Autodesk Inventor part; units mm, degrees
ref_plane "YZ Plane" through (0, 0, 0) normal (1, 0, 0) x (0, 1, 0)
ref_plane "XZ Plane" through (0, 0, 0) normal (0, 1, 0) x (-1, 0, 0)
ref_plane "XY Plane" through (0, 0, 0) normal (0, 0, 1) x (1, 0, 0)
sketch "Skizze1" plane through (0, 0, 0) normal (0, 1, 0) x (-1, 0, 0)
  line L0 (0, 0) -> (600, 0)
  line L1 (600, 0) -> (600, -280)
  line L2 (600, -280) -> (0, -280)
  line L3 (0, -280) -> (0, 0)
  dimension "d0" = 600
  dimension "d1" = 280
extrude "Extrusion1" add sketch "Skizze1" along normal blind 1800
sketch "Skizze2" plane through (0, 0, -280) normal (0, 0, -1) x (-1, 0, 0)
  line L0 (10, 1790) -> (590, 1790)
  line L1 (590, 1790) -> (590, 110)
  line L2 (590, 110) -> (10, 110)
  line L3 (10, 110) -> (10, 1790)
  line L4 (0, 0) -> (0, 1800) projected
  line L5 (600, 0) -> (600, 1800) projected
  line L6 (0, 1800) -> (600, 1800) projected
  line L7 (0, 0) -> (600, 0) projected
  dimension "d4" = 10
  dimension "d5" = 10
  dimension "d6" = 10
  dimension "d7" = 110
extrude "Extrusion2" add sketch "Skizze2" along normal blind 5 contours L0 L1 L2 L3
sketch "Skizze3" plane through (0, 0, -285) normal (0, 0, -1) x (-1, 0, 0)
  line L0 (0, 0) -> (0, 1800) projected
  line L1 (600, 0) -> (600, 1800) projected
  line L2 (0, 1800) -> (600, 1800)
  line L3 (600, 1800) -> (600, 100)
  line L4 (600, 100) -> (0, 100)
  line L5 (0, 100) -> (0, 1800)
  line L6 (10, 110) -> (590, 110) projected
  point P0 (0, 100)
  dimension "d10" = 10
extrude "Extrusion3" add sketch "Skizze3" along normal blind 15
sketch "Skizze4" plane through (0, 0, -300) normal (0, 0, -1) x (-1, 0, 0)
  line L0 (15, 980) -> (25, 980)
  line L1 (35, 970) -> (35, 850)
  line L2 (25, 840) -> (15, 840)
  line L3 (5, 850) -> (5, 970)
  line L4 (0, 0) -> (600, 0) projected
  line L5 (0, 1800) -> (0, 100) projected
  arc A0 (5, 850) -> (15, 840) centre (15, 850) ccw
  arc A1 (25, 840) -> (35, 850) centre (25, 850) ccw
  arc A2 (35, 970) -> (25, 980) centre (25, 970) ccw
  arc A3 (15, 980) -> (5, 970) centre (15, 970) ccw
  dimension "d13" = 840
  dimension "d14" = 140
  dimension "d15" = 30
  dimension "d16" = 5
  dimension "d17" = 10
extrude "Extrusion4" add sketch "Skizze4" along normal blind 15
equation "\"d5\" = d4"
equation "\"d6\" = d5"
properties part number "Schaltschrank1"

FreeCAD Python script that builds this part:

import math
import FreeCAD as App
import Part
import Sketcher
Q = App.Units.Quantity


def add_polygon(sketch, points):
    """Adds a closed chain of lines whose ends are joined by coincident constraints."""
    first, n = sketch.GeometryCount, len(points)
    for a, b in zip(points, points[1:] + points[:1]):
        sketch.addGeometry(Part.LineSegment(App.Vector(*a, 0), App.Vector(*b, 0)), False)
    for i in range(n):
        sketch.addConstraint(Sketcher.Constraint("Coincident", first + i, 2, first + (i + 1) % n, 1))

doc = App.newDocument("Part")
body = doc.addObject("PartDesign::Body", "Body")

# Sketch on XZ plane
sketch1 = body.newObject("Sketcher::SketchObject", "Sketch")
sketch1.AttachmentSupport = (doc.getObject("XZ_Plane"), [""])
sketch1.MapMode = "FlatFace"
add_polygon(sketch1, [(-600, 0), (0, 0), (0, -280), (-600, -280)])  # lines 0-3
sketch1.addConstraint([
    Sketcher.Constraint("Horizontal", 0),
    Sketcher.Constraint("Vertical", 1),
    Sketcher.Constraint("Horizontal", 2),
    Sketcher.Constraint("Vertical", 3),
    Sketcher.Constraint("Coincident", 0, 2, -1, 1),
    Sketcher.Constraint("DistanceX", 0, 1, 0, 2, Q("600 mm")),
    Sketcher.Constraint("DistanceY", 1, 2, 1, 1, Q("280 mm")),
])
pad1 = body.newObject("PartDesign::Pad", "Pad")
pad1.Profile = sketch1
pad1.Length = 1800
pad1.Reversed = True

# Sketch on XY plane
sketch2 = body.newObject("Sketcher::SketchObject", "Sketch001")
sketch2.AttachmentSupport = (doc.getObject("XY_Plane"), [""])
sketch2.MapMode = "FlatFace"
sketch2.AttachmentOffset = App.Placement(App.Vector(0, 0, -280), App.Rotation())
add_polygon(sketch2, [(-590, 1790), (-10, 1790), (-10, 110), (-590, 110)])  # lines 0-3
sketch2.addConstraint([
    Sketcher.Constraint("Horizontal", 0),
    Sketcher.Constraint("Vertical", 1),
    Sketcher.Constraint("Horizontal", 2),
    Sketcher.Constraint("Vertical", 3),
    Sketcher.Constraint("DistanceX", 0, 2, -1, 1, Q("10 mm")),
    Sketcher.Constraint("DistanceY", -1, 1, 1, 2, Q("110 mm")),
    Sketcher.Constraint("DistanceX", 0, 1, 0, 2, Q("580 mm")),
    Sketcher.Constraint("DistanceY", 1, 2, 1, 1, Q("1680 mm")),
])
pad2 = body.newObject("PartDesign::Pad", "Pad001")
pad2.Profile = sketch2
pad2.Length = 5
pad2.Reversed = True

# Sketch on XY plane
sketch3 = body.newObject("Sketcher::SketchObject", "Sketch002")
sketch3.AttachmentSupport = (doc.getObject("XY_Plane"), [""])
sketch3.MapMode = "FlatFace"
sketch3.AttachmentOffset = App.Placement(App.Vector(0, 0, -285), App.Rotation())
add_polygon(sketch3, [(0, 1800), (0, 100), (-600, 100), (-600, 1800)])  # lines 0-3
sketch3.addConstraint([
    Sketcher.Constraint("Vertical", 0),
    Sketcher.Constraint("Horizontal", 1),
    Sketcher.Constraint("Vertical", 2),
    Sketcher.Constraint("Horizontal", 3),
    Sketcher.Constraint("PointOnObject", 0, 2, -2),
    Sketcher.Constraint("DistanceX", 1, 2, 1, 1, Q("600 mm")),
    Sketcher.Constraint("DistanceY", 0, 2, 0, 1, Q("1700 mm")),
    Sketcher.Constraint("DistanceY", -1, 1, 0, 2, Q("100 mm")),
])
pad3 = body.newObject("PartDesign::Pad", "Pad002")
pad3.Profile = sketch3
pad3.Length = 15
pad3.Reversed = True

# Sketch on XY plane
sketch4 = body.newObject("Sketcher::SketchObject", "Sketch003")
sketch4.AttachmentSupport = (doc.getObject("XY_Plane"), [""])
sketch4.MapMode = "FlatFace"
sketch4.AttachmentOffset = App.Placement(App.Vector(0, 0, -300), App.Rotation())
sketch4.addGeometry([
    Part.LineSegment(App.Vector(-25, 980, 0), App.Vector(-15, 980, 0)),  # 0
    Part.ArcOfCircle(Part.Circle(App.Vector(-15, 970, 0), App.Vector(0, 0, 1), 10), math.radians(0), math.radians(90)),  # 1
    Part.LineSegment(App.Vector(-5, 970, 0), App.Vector(-5, 850, 0)),  # 2
    Part.ArcOfCircle(Part.Circle(App.Vector(-15, 850, 0), App.Vector(0, 0, 1), 10), math.radians(-90), math.radians(0)),  # 3
    Part.LineSegment(App.Vector(-15, 840, 0), App.Vector(-25, 840, 0)),  # 4
    Part.ArcOfCircle(Part.Circle(App.Vector(-25, 850, 0), App.Vector(0, 0, 1), 10), math.radians(180), math.radians(270)),  # 5
    Part.LineSegment(App.Vector(-35, 850, 0), App.Vector(-35, 970, 0)),  # 6
    Part.ArcOfCircle(Part.Circle(App.Vector(-25, 970, 0), App.Vector(0, 0, 1), 10), math.radians(90), math.radians(180)),  # 7
], False)
sketch4.addConstraint([
    Sketcher.Constraint("Tangent", 0, 2, 1, 2),
    Sketcher.Constraint("Tangent", 1, 1, 2, 1),
    Sketcher.Constraint("Tangent", 2, 2, 3, 2),
    Sketcher.Constraint("Tangent", 3, 1, 4, 1),
    Sketcher.Constraint("Tangent", 4, 2, 5, 2),
    Sketcher.Constraint("Tangent", 5, 1, 6, 1),
    Sketcher.Constraint("Tangent", 6, 2, 7, 2),
    Sketcher.Constraint("Tangent", 7, 1, 0, 1),
    Sketcher.Constraint("Horizontal", 0),
    Sketcher.Constraint("Vertical", 2),
    Sketcher.Constraint("Horizontal", 4),
    Sketcher.Constraint("Vertical", 6),
    Sketcher.Constraint("Equal", 1, 3),
    Sketcher.Constraint("Equal", 3, 5),
    Sketcher.Constraint("Equal", 5, 7),
    Sketcher.Constraint("Radius", 1, Q("10 mm")),
    Sketcher.Constraint("DistanceX", 0, 1, 0, 2, Q("10 mm")),
    Sketcher.Constraint("DistanceX", 1, 1, -1, 1, Q("5 mm")),
    Sketcher.Constraint("DistanceY", -1, 1, 3, 1, Q("840 mm")),
    Sketcher.Constraint("DistanceY", 2, 2, 2, 1, Q("120 mm")),
])
pad4 = body.newObject("PartDesign::Pad", "Pad003")
pad4.Profile = sketch4
pad4.Length = 15
pad4.Reversed = True

doc.recompute()
